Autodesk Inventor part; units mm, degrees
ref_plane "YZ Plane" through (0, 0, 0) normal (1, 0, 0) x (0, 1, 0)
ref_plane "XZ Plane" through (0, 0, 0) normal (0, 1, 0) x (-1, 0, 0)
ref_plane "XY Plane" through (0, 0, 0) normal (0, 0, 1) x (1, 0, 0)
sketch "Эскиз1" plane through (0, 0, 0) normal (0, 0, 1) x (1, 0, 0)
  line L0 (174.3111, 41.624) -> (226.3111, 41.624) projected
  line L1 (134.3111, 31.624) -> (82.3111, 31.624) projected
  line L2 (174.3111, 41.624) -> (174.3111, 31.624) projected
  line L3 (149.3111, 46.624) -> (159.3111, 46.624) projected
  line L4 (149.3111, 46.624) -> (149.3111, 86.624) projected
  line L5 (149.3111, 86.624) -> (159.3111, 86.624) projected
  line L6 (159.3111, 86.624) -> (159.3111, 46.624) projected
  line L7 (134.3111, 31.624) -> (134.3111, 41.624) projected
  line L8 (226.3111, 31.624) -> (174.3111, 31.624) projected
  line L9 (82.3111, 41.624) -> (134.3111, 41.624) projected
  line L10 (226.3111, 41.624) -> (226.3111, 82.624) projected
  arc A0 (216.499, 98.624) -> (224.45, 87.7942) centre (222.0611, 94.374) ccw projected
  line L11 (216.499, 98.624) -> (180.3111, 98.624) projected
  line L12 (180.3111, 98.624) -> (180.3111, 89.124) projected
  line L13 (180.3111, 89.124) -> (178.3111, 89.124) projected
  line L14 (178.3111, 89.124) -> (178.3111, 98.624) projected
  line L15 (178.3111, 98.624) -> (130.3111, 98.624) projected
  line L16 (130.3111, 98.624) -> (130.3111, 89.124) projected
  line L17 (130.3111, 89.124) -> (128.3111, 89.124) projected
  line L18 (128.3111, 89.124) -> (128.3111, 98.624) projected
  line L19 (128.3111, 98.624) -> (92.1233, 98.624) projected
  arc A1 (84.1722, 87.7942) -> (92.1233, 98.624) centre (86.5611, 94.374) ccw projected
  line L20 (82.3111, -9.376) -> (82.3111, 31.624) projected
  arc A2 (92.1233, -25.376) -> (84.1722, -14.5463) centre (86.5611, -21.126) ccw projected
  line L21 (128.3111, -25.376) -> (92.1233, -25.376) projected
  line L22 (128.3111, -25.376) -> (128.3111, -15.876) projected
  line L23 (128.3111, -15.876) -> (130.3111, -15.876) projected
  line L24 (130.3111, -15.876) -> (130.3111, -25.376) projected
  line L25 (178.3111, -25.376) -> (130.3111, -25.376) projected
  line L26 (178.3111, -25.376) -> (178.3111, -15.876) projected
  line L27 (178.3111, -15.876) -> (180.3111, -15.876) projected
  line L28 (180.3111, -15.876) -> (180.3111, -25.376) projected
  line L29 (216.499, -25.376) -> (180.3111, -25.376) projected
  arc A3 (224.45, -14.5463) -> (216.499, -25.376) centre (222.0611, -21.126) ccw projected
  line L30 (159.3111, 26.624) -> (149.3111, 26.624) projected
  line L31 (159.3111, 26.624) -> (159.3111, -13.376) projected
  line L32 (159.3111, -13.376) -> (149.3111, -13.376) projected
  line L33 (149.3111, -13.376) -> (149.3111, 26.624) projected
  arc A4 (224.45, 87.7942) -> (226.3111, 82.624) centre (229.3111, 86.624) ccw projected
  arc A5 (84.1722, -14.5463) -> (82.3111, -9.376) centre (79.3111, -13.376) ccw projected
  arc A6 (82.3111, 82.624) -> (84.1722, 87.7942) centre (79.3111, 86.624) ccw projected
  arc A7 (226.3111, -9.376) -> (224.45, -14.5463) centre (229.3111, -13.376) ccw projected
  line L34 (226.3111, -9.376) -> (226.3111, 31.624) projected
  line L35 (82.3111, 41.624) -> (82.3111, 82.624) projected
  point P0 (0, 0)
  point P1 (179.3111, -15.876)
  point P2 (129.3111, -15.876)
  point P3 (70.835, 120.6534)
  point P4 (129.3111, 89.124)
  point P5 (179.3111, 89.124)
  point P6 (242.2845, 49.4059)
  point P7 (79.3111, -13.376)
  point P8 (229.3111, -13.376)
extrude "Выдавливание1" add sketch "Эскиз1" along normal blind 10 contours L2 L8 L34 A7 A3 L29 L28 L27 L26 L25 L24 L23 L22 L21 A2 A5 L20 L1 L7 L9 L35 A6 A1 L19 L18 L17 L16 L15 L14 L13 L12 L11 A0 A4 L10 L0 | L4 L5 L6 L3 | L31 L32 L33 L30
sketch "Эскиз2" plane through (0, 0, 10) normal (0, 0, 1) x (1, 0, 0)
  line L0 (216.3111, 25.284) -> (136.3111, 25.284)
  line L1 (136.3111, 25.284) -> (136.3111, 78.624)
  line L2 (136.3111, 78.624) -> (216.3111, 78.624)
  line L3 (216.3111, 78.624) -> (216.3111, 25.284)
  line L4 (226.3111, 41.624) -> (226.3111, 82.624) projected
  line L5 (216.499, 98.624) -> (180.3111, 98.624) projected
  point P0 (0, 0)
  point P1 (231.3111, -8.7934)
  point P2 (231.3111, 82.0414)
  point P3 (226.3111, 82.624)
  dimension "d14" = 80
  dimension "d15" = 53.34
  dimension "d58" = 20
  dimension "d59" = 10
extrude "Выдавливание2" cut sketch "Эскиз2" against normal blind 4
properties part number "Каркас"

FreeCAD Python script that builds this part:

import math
import FreeCAD as App
import Part
import Sketcher
Q = App.Units.Quantity

doc = App.newDocument("Part")
params = doc.addObject("Spreadsheet::Sheet", "Params")
for row, (alias, value) in enumerate([
    ("sketch1_radius", "5 mm"),
    ("sketch1_radius2", "7 mm"),
    ("sketch1_width", "52 mm"),
    ("sketch1_width2", "2 mm"),
    ("sketch1_width3", "48 mm"),
    ("pad1_length", "10 mm"),
    ("sketch2_width", "80 mm"),
    ("sketch2_height", "53.34 mm"),
    ("pocket1_length", "4 mm"),
], start=1):
    params.set(f"A{row}", alias)
    params.set(f"B{row}", "=" + value)
    params.setAlias(f"B{row}", alias)

body = doc.addObject("PartDesign::Body", "Body")

sketch1 = body.newObject("Sketcher::SketchObject", "Sketch")
sketch1.AttachmentSupport = (doc.getObject("XY_Plane"), [""])
sketch1.MapMode = "FlatFace"
sketch1.addGeometry(Part.LineSegment(App.Vector(174.3111, 31.624, 0), App.Vector(174.3111, 41.624, 0)), False)
sketch1.addGeometry(Part.LineSegment(App.Vector(174.3111, 41.624, 0), App.Vector(226.3111, 41.624, 0)), False)
sketch1.addGeometry(Part.LineSegment(App.Vector(226.3111, 41.624, 0), App.Vector(226.3111, 82.624, 0)), False)
sketch1.addGeometry(Part.ArcOfCircle(Part.Circle(App.Vector(229.3111, 86.624, 0), App.Vector(0, 0, 1), 4.999966), math.radians(166.464866), math.radians(233.130102)), False)
sketch1.addGeometry(Part.ArcOfCircle(Part.Circle(App.Vector(222.0611, 94.374, 0), App.Vector(0, 0, 1), 6.999961), math.radians(142.616559), math.radians(289.954226)), False)
sketch1.addGeometry(Part.LineSegment(App.Vector(216.499, 98.624, 0), App.Vector(180.3111, 98.624, 0)), False)
sketch1.addGeometry(Part.LineSegment(App.Vector(180.3111, 98.624, 0), App.Vector(180.3111, 89.124, 0)), False)
sketch1.addGeometry(Part.LineSegment(App.Vector(180.3111, 89.124, 0), App.Vector(178.3111, 89.124, 0)), False)
sketch1.addGeometry(Part.LineSegment(App.Vector(178.3111, 89.124, 0), App.Vector(178.3111, 98.624, 0)), False)
sketch1.addGeometry(Part.LineSegment(App.Vector(178.3111, 98.624, 0), App.Vector(130.3111, 98.624, 0)), False)
sketch1.addGeometry(Part.LineSegment(App.Vector(130.3111, 98.624, 0), App.Vector(130.3111, 89.124, 0)), False)
sketch1.addGeometry(Part.LineSegment(App.Vector(130.3111, 89.124, 0), App.Vector(128.3111, 89.124, 0)), False)
sketch1.addGeometry(Part.LineSegment(App.Vector(128.3111, 89.124, 0), App.Vector(128.3111, 98.624, 0)), False)
sketch1.addGeometry(Part.LineSegment(App.Vector(128.3111, 98.624, 0), App.Vector(92.1233, 98.624, 0)), False)
sketch1.addGeometry(Part.ArcOfCircle(Part.Circle(App.Vector(86.5611, 94.374, 0), App.Vector(0, 0, 1), 7.000044), math.radians(-109.954226), math.radians(37.382944)), False)
sketch1.addGeometry(Part.ArcOfCircle(Part.Circle(App.Vector(79.3111, 86.624, 0), App.Vector(0, 0, 1), 5), math.radians(-53.130102), math.radians(13.535134)), False)
sketch1.addGeometry(Part.LineSegment(App.Vector(82.3111, 82.624, 0), App.Vector(82.3111, 41.624, 0)), False)
sketch1.addGeometry(Part.LineSegment(App.Vector(82.3111, 41.624, 0), App.Vector(134.3111, 41.624, 0)), False)
sketch1.addGeometry(Part.LineSegment(App.Vector(134.3111, 41.624, 0), App.Vector(134.3111, 31.624, 0)), False)
sketch1.addGeometry(Part.LineSegment(App.Vector(134.3111, 31.624, 0), App.Vector(82.3111, 31.624, 0)), False)
sketch1.addGeometry(Part.LineSegment(App.Vector(82.3111, 31.624, 0), App.Vector(82.3111, -9.376, 0)), False)
sketch1.addGeometry(Part.ArcOfCircle(Part.Circle(App.Vector(79.3111, -13.376, 0), App.Vector(0, 0, 1), 4.99999), math.radians(-13.536248), math.radians(53.130102)), False)
sketch1.addGeometry(Part.ArcOfCircle(Part.Circle(App.Vector(86.5611, -21.126, 0), App.Vector(0, 0, 1), 7.000041), math.radians(-37.382944), math.radians(109.954505)), False)
sketch1.addGeometry(Part.LineSegment(App.Vector(92.1233, -25.376, 0), App.Vector(128.3111, -25.376, 0)), False)
sketch1.addGeometry(Part.LineSegment(App.Vector(128.3111, -25.376, 0), App.Vector(128.3111, -15.876, 0)), False)
sketch1.addGeometry(Part.LineSegment(App.Vector(128.3111, -15.876, 0), App.Vector(130.3111, -15.876, 0)), False)
sketch1.addGeometry(Part.LineSegment(App.Vector(130.3111, -15.876, 0), App.Vector(130.3111, -25.376, 0)), False)
sketch1.addGeometry(Part.LineSegment(App.Vector(130.3111, -25.376, 0), App.Vector(178.3111, -25.376, 0)), False)
sketch1.addGeometry(Part.LineSegment(App.Vector(178.3111, -25.376, 0), App.Vector(178.3111, -15.876, 0)), False)
sketch1.addGeometry(Part.LineSegment(App.Vector(178.3111, -15.876, 0), App.Vector(180.3111, -15.876, 0)), False)
sketch1.addGeometry(Part.LineSegment(App.Vector(180.3111, -15.876, 0), App.Vector(180.3111, -25.376, 0)), False)
sketch1.addGeometry(Part.LineSegment(App.Vector(180.3111, -25.376, 0), App.Vector(216.499, -25.376, 0)), False)
sketch1.addGeometry(Part.ArcOfCircle(Part.Circle(App.Vector(222.0611, -21.126, 0), App.Vector(0, 0, 1), 6.99995), math.radians(70.045495), math.radians(217.383441)), False)
sketch1.addGeometry(Part.ArcOfCircle(Part.Circle(App.Vector(229.3111, -13.376, 0), App.Vector(0, 0, 1), 5), math.radians(126.869898), math.radians(193.536248)), False)
sketch1.addGeometry(Part.LineSegment(App.Vector(226.3111, -9.376, 0), App.Vector(226.3111, 31.624, 0)), False)
sketch1.addGeometry(Part.LineSegment(App.Vector(226.3111, 31.624, 0), App.Vector(174.3111, 31.624, 0)), False)
sketch1.addConstraint(Sketcher.Constraint("Coincident", 0, 2, 1, 1))
sketch1.addConstraint(Sketcher.Constraint("Coincident", 1, 2, 2, 1))
sketch1.addConstraint(Sketcher.Constraint("Coincident", 2, 2, 3, 2))
sketch1.addConstraint(Sketcher.Constraint("Coincident", 3, 1, 4, 2))
sketch1.addConstraint(Sketcher.Constraint("Coincident", 4, 1, 5, 1))
sketch1.addConstraint(Sketcher.Constraint("Coincident", 5, 2, 6, 1))
sketch1.addConstraint(Sketcher.Constraint("Coincident", 6, 2, 7, 1))
sketch1.addConstraint(Sketcher.Constraint("Coincident", 7, 2, 8, 1))
sketch1.addConstraint(Sketcher.Constraint("Coincident", 8, 2, 9, 1))
sketch1.addConstraint(Sketcher.Constraint("Coincident", 9, 2, 10, 1))
sketch1.addConstraint(Sketcher.Constraint("Coincident", 10, 2, 11, 1))
sketch1.addConstraint(Sketcher.Constraint("Coincident", 11, 2, 12, 1))
sketch1.addConstraint(Sketcher.Constraint("Coincident", 12, 2, 13, 1))
sketch1.addConstraint(Sketcher.Constraint("Coincident", 13, 2, 14, 2))
sketch1.addConstraint(Sketcher.Constraint("Coincident", 14, 1, 15, 2))
sketch1.addConstraint(Sketcher.Constraint("Coincident", 15, 1, 16, 1))
sketch1.addConstraint(Sketcher.Constraint("Coincident", 16, 2, 17, 1))
sketch1.addConstraint(Sketcher.Constraint("Coincident", 17, 2, 18, 1))
sketch1.addConstraint(Sketcher.Constraint("Coincident", 18, 2, 19, 1))
sketch1.addConstraint(Sketcher.Constraint("Coincident", 19, 2, 20, 1))
sketch1.addConstraint(Sketcher.Constraint("Coincident", 20, 2, 21, 2))
sketch1.addConstraint(Sketcher.Constraint("Coincident", 21, 1, 22, 2))
sketch1.addConstraint(Sketcher.Constraint("Coincident", 22, 1, 23, 1))
sketch1.addConstraint(Sketcher.Constraint("Coincident", 23, 2, 24, 1))
sketch1.addConstraint(Sketcher.Constraint("Coincident", 24, 2, 25, 1))
sketch1.addConstraint(Sketcher.Constraint("Coincident", 25, 2, 26, 1))
sketch1.addConstraint(Sketcher.Constraint("Coincident", 26, 2, 27, 1))
sketch1.addConstraint(Sketcher.Constraint("Coincident", 27, 2, 28, 1))
sketch1.addConstraint(Sketcher.Constraint("Coincident", 28, 2, 29, 1))
sketch1.addConstraint(Sketcher.Constraint("Coincident", 29, 2, 30, 1))
sketch1.addConstraint(Sketcher.Constraint("Coincident", 30, 2, 31, 1))
sketch1.addConstraint(Sketcher.Constraint("Coincident", 31, 2, 32, 2))
sketch1.addConstraint(Sketcher.Constraint("Coincident", 32, 1, 33, 2))
sketch1.addConstraint(Sketcher.Constraint("Coincident", 33, 1, 34, 1))
sketch1.addConstraint(Sketcher.Constraint("Coincident", 34, 2, 35, 1))
sketch1.addConstraint(Sketcher.Constraint("Coincident", 35, 2, 0, 1))
sketch1.addConstraint(Sketcher.Constraint("Vertical", 0))
sketch1.addConstraint(Sketcher.Constraint("Horizontal", 1))
sketch1.addConstraint(Sketcher.Constraint("Vertical", 2))
sketch1.addConstraint(Sketcher.Constraint("Horizontal", 5))
sketch1.addConstraint(Sketcher.Constraint("Vertical", 6))
sketch1.addConstraint(Sketcher.Constraint("Horizontal", 7))
sketch1.addConstraint(Sketcher.Constraint("Vertical", 8))
sketch1.addConstraint(Sketcher.Constraint("Horizontal", 9))
sketch1.addConstraint(Sketcher.Constraint("Vertical", 10))
sketch1.addConstraint(Sketcher.Constraint("Horizontal", 11))
sketch1.addConstraint(Sketcher.Constraint("Vertical", 12))
sketch1.addConstraint(Sketcher.Constraint("Horizontal", 13))
sketch1.addConstraint(Sketcher.Constraint("Vertical", 16))
sketch1.addConstraint(Sketcher.Constraint("Horizontal", 17))
sketch1.addConstraint(Sketcher.Constraint("Vertical", 18))
sketch1.addConstraint(Sketcher.Constraint("Horizontal", 19))
sketch1.addConstraint(Sketcher.Constraint("Vertical", 20))
sketch1.addConstraint(Sketcher.Constraint("Horizontal", 23))
sketch1.addConstraint(Sketcher.Constraint("Vertical", 24))
sketch1.addConstraint(Sketcher.Constraint("Horizontal", 25))
sketch1.addConstraint(Sketcher.Constraint("Vertical", 26))
sketch1.addConstraint(Sketcher.Constraint("Horizontal", 27))
sketch1.addConstraint(Sketcher.Constraint("Vertical", 28))
sketch1.addConstraint(Sketcher.Constraint("Horizontal", 29))
sketch1.addConstraint(Sketcher.Constraint("Vertical", 30))
sketch1.addConstraint(Sketcher.Constraint("Horizontal", 31))
sketch1.addConstraint(Sketcher.Constraint("Vertical", 34))
sketch1.addConstraint(Sketcher.Constraint("Horizontal", 35))
sketch1.addConstraint(Sketcher.Constraint("Equal", 4, 14))
sketch1.addConstraint(Sketcher.Constraint("Equal", 3, 15))
sketch1.addConstraint(Sketcher.Constraint("Equal", 15, 21))
sketch1.addConstraint(Sketcher.Constraint("Equal", 14, 22))
sketch1.addConstraint(Sketcher.Constraint("Equal", 22, 32))
sketch1.addConstraint(Sketcher.Constraint("Equal", 21, 33))
sketch1.addConstraint(Sketcher.Constraint("Horizontal", 4, 3, 14, 3))
sketch1.addConstraint(Sketcher.Constraint("Horizontal", 3, 3, 15, 3))
sketch1.addConstraint(Sketcher.Constraint("Horizontal", 22, 3, 32, 3))
sketch1.addConstraint(Sketcher.Constraint("Horizontal", 21, 3, 33, 3))
sketch1.addConstraint(Sketcher.Constraint("Horizontal", 5, 2, 8, 2))
sketch1.addConstraint(Sketcher.Constraint("Horizontal", 7, 2, 10, 2))
sketch1.addConstraint(Sketcher.Constraint("Horizontal", 9, 2, 12, 2))
sketch1.addConstraint(Sketcher.Constraint("Horizontal", 3, 1, 14, 1))
sketch1.addConstraint(Sketcher.Constraint("Horizontal", 2, 2, 15, 1))
sketch1.addConstraint(Sketcher.Constraint("Horizontal", 1, 2, 16, 2))
sketch1.addConstraint(Sketcher.Constraint("Horizontal", 23, 2, 26, 2))
sketch1.addConstraint(Sketcher.Constraint("Horizontal", 25, 2, 28, 2))
sketch1.addConstraint(Sketcher.Constraint("Horizontal", 27, 2, 30, 2))
sketch1.addConstraint(Sketcher.Constraint("Horizontal", 21, 1, 32, 1))
sketch1.addConstraint(Sketcher.Constraint("Horizontal", 20, 2, 33, 1))
sketch1.addConstraint(Sketcher.Constraint("Horizontal", 19, 2, 34, 2))
sketch1.addConstraint(Sketcher.Constraint("Vertical", 15, 3, 21, 3))
sketch1.addConstraint(Sketcher.Constraint("Vertical", 14, 3, 22, 3))
sketch1.addConstraint(Sketcher.Constraint("Vertical", 4, 3, 32, 3))
sketch1.addConstraint(Sketcher.Constraint("Vertical", 16, 2, 19, 2))
sketch1.addConstraint(Sketcher.Constraint("Vertical", 14, 1, 21, 1))
sketch1.addConstraint(Sketcher.Constraint("Vertical", 13, 2, 22, 1))
sketch1.addConstraint(Sketcher.Constraint("Vertical", 12, 2, 23, 2))
sketch1.addConstraint(Sketcher.Constraint("Vertical", 10, 2, 25, 2))
sketch1.addConstraint(Sketcher.Constraint("Vertical", 8, 2, 27, 2))
sketch1.addConstraint(Sketcher.Constraint("Vertical", 6, 2, 29, 2))
sketch1.addConstraint(Sketcher.Constraint("Equal", 7, 11))
sketch1.addConstraint(Sketcher.Constraint("Equal", 5, 13))
sketch1.addConstraint(Sketcher.Constraint("Equal", 1, 17))
sketch1.addConstraint(Sketcher.Constraint("Equal", 16, 20))
sketch1.addConstraint(Sketcher.Constraint("Equal", 12, 24))
sketch1.addConstraint(Sketcher.Constraint("Radius", 3, Q("5 mm")))
sketch1.addConstraint(Sketcher.Constraint("Radius", 4, Q("7 mm")))
sketch1.addConstraint(Sketcher.Constraint("DistanceX", 1, 1, 1, 2, Q("52 mm")))
sketch1.addConstraint(Sketcher.Constraint("DistanceX", 7, 2, 7, 1, Q("2 mm")))
sketch1.addConstraint(Sketcher.Constraint("DistanceX", 9, 2, 9, 1, Q("48 mm")))
sketch1.addConstraint(Sketcher.Constraint("DistanceY", 0, 1, 0, 2, Q("10 mm")))
sketch1.addConstraint(Sketcher.Constraint("DistanceY", 2, 1, 2, 2, Q("41 mm")))
sketch1.addConstraint(Sketcher.Constraint("DistanceY", 6, 2, 6, 1, Q("9.5 mm")))
sketch1.addConstraint(Sketcher.Constraint("DistanceX", 15, 3, 3, 3, Q("150 mm")))
sketch1.addConstraint(Sketcher.Constraint("DistanceY", 21, 3, 15, 3, Q("100 mm")))
sketch1.addConstraint(Sketcher.Constraint("DistanceY", 3, 3, 4, 1, Q("12 mm")))
sketch1.addConstraint(Sketcher.Constraint("DistanceX", 14, 3, 4, 3, Q("135.5 mm")))
sketch1.addConstraint(Sketcher.Constraint("DistanceY", 22, 3, 14, 3, Q("115.5 mm")))
sketch1.addConstraint(Sketcher.Constraint("DistanceX", -1, 1, 3, 1, Q("224.45 mm")))
sketch1.addConstraint(Sketcher.Constraint("DistanceY", -1, 1, 3, 3, Q("86.624 mm")))
sketch1.setExpression("Constraints[101]", "Params.sketch1_radius")
sketch1.setExpression("Constraints[102]", "Params.sketch1_radius2")
sketch1.setExpression("Constraints[103]", "Params.sketch1_width")
sketch1.setExpression("Constraints[104]", "Params.sketch1_width2")
sketch1.setExpression("Constraints[105]", "Params.sketch1_width3")
pad1 = body.newObject("PartDesign::Pad", "Pad")
pad1.Profile = sketch1
pad1.setExpression("Length", "Params.pad1_length")

sketch2 = body.newObject("Sketcher::SketchObject", "Sketch001")
sketch2.AttachmentSupport = (doc.getObject("XY_Plane"), [""])
sketch2.MapMode = "FlatFace"
sketch2.AttachmentOffset = App.Placement(App.Vector(0, 0, 10), App.Rotation())
sketch2.addGeometry(Part.LineSegment(App.Vector(136.3111, 25.284, 0), App.Vector(216.3111, 25.284, 0)), False)
sketch2.addGeometry(Part.LineSegment(App.Vector(216.3111, 25.284, 0), App.Vector(216.3111, 78.624, 0)), False)
sketch2.addGeometry(Part.LineSegment(App.Vector(216.3111, 78.624, 0), App.Vector(136.3111, 78.624, 0)), False)
sketch2.addGeometry(Part.LineSegment(App.Vector(136.3111, 78.624, 0), App.Vector(136.3111, 25.284, 0)), False)
sketch2.addConstraint(Sketcher.Constraint("Coincident", 0, 2, 1, 1))
sketch2.addConstraint(Sketcher.Constraint("Coincident", 1, 2, 2, 1))
sketch2.addConstraint(Sketcher.Constraint("Coincident", 2, 2, 3, 1))
sketch2.addConstraint(Sketcher.Constraint("Coincident", 3, 2, 0, 1))
sketch2.addConstraint(Sketcher.Constraint("Horizontal", 0))
sketch2.addConstraint(Sketcher.Constraint("Vertical", 1))
sketch2.addConstraint(Sketcher.Constraint("Horizontal", 2))
sketch2.addConstraint(Sketcher.Constraint("Vertical", 3))
sketch2.addConstraint(Sketcher.Constraint("DistanceX", 0, 1, 0, 2, Q("80 mm")))
sketch2.addConstraint(Sketcher.Constraint("DistanceY", 1, 1, 1, 2, Q("53.34 mm")))
sketch2.addConstraint(Sketcher.Constraint("DistanceX", -1, 1, 0, 2, Q("216.311 mm")))
sketch2.addConstraint(Sketcher.Constraint("DistanceY", -1, 1, 0, 2, Q("25.284 mm")))
sketch2.setExpression("Constraints[8]", "Params.sketch2_width")
sketch2.setExpression("Constraints[9]", "Params.sketch2_height")
pocket1 = body.newObject("PartDesign::Pocket", "Pocket")
pocket1.Profile = sketch2
pocket1.setExpression("Length", "Params.pocket1_length")

doc.recompute()
